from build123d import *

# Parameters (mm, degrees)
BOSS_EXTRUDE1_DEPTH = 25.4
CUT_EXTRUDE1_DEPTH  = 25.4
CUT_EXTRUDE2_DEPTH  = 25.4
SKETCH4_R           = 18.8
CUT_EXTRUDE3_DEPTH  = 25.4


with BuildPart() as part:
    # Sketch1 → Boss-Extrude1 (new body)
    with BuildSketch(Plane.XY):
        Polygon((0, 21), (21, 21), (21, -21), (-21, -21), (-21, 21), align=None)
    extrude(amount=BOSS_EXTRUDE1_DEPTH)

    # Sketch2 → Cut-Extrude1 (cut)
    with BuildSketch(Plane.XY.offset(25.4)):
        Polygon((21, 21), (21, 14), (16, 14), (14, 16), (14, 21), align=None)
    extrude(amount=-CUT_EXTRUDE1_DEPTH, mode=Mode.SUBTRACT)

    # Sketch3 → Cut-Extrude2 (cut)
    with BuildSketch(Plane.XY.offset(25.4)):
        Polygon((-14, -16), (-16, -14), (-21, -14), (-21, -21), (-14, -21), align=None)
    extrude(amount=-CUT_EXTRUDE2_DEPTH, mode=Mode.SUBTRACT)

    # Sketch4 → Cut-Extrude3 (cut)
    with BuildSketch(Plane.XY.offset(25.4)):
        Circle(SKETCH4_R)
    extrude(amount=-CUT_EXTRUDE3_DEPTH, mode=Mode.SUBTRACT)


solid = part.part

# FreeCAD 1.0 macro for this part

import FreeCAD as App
import Part
import Sketcher

V = App.Vector
Q = App.Units.Quantity


def add_polygon(sketch, points):
    """Adds a closed chain of lines whose ends are joined by coincident constraints."""
    first, n = sketch.GeometryCount, len(points)
    for a, b in zip(points, points[1:] + points[:1]):
        sketch.addGeometry(Part.LineSegment(App.Vector(*a, 0), App.Vector(*b, 0)), False)
    for i in range(n):
        sketch.addConstraint(Sketcher.Constraint("Coincident", first + i, 2, first + (i + 1) % n, 1))

doc = App.newDocument("Part")
body = doc.addObject("PartDesign::Body", "Body")

sketch1 = doc.addObject("Sketcher::SketchObject", "Sketch")
body.addObject(sketch1)
sketch1.AttachmentSupport = (doc.XY_Plane, [""])
sketch1.MapMode = "FlatFace"
add_polygon(sketch1, [(21, 21), (-21, 21), (-21, -21), (21, -21)])
sketch1.addConstraint([
    Sketcher.Constraint("Horizontal", 0),
    Sketcher.Constraint("Vertical", 1),
    Sketcher.Constraint("Horizontal", 2),
    Sketcher.Constraint("Vertical", 3),
    Sketcher.Constraint("Symmetric", 0, 2, 2, 2, -1, 1),
    Sketcher.Constraint("Equal", 2, 1),
    Sketcher.Constraint("DistanceX", 0, 2, 0, 1, Q("42 mm")),
])
pad1 = doc.addObject("PartDesign::Pad", "Pad")
body.addObject(pad1)
pad1.Profile = sketch1
pad1.Length = 25.4

sketch2 = doc.addObject("Sketcher::SketchObject", "Sketch001")
body.addObject(sketch2)
sketch2.AttachmentSupport = (doc.XY_Plane, [""])
sketch2.MapMode = "FlatFace"
sketch2.AttachmentOffset = App.Placement(V(0, 0, 25.4), App.Rotation())
add_polygon(sketch2, [(21, 14), (21, 21), (14, 21), (14, 16), (16, 14)])
sketch2.addConstraint([
    Sketcher.Constraint("Vertical", 0),
    Sketcher.Constraint("Horizontal", 1),
    Sketcher.Constraint("Vertical", 2),
    Sketcher.Constraint("Horizontal", 4),
    Sketcher.Constraint("Equal", 1, 0),
    Sketcher.Constraint("Equal", 4, 2),
    Sketcher.Constraint("DistanceX", 1, 2, 1, 1, Q("7 mm")),
    Sketcher.Constraint("DistanceX", 4, 1, 4, 2, Q("5 mm")),
    Sketcher.Constraint("DistanceX", -1, 1, 0, 2, Q("21 mm")),
    Sketcher.Constraint("DistanceY", -1, 1, 0, 2, Q("21 mm")),
])
pocket1 = doc.addObject("PartDesign::Pocket", "Pocket")
body.addObject(pocket1)
pocket1.Profile = sketch2
pocket1.Length = 25.4

sketch3 = doc.addObject("Sketcher::SketchObject", "Sketch002")
body.addObject(sketch3)
sketch3.AttachmentSupport = (doc.XY_Plane, [""])
sketch3.MapMode = "FlatFace"
sketch3.AttachmentOffset = App.Placement(V(0, 0, 25.4), App.Rotation())
add_polygon(sketch3, [(-14, -16), (-16, -14), (-21, -14), (-21, -21), (-14, -21)])
sketch3.addConstraint([
    Sketcher.Constraint("Horizontal", 1),
    Sketcher.Constraint("Vertical", 2),
    Sketcher.Constraint("Horizontal", 3),
    Sketcher.Constraint("Vertical", 4),
    Sketcher.Constraint("Equal", 3, 2),
    Sketcher.Constraint("Equal", 1, 4),
    Sketcher.Constraint("DistanceX", 1, 2, 1, 1, Q("5 mm")),
    Sketcher.Constraint("DistanceX", 3, 1, 3, 2, Q("7 mm")),
    Sketcher.Constraint("DistanceX", 0, 2, -1, 1, Q("16 mm")),
    Sketcher.Constraint("DistanceY", 0, 2, -1, 1, Q("14 mm")),
])
pocket2 = doc.addObject("PartDesign::Pocket", "Pocket001")
body.addObject(pocket2)
pocket2.Profile = sketch3
pocket2.Length = 25.4

sketch4 = doc.addObject("Sketcher::SketchObject", "Sketch003")
body.addObject(sketch4)
sketch4.AttachmentSupport = (doc.XY_Plane, [""])
sketch4.MapMode = "FlatFace"
sketch4.AttachmentOffset = App.Placement(V(0, 0, 25.4), App.Rotation())
sketch4.addGeometry(Part.Circle(V(0, 0, 0), V(0, 0, 1), 19), False)
sketch4.addConstraint([
    Sketcher.Constraint("Coincident", 0, 3, -1, 1),
    Sketcher.Constraint("Diameter", 0, Q("37.6 mm")),
])
pocket3 = doc.addObject("PartDesign::Pocket", "Pocket002")
body.addObject(pocket3)
pocket3.Profile = sketch4
pocket3.Length = 25.4

doc.recompute()
